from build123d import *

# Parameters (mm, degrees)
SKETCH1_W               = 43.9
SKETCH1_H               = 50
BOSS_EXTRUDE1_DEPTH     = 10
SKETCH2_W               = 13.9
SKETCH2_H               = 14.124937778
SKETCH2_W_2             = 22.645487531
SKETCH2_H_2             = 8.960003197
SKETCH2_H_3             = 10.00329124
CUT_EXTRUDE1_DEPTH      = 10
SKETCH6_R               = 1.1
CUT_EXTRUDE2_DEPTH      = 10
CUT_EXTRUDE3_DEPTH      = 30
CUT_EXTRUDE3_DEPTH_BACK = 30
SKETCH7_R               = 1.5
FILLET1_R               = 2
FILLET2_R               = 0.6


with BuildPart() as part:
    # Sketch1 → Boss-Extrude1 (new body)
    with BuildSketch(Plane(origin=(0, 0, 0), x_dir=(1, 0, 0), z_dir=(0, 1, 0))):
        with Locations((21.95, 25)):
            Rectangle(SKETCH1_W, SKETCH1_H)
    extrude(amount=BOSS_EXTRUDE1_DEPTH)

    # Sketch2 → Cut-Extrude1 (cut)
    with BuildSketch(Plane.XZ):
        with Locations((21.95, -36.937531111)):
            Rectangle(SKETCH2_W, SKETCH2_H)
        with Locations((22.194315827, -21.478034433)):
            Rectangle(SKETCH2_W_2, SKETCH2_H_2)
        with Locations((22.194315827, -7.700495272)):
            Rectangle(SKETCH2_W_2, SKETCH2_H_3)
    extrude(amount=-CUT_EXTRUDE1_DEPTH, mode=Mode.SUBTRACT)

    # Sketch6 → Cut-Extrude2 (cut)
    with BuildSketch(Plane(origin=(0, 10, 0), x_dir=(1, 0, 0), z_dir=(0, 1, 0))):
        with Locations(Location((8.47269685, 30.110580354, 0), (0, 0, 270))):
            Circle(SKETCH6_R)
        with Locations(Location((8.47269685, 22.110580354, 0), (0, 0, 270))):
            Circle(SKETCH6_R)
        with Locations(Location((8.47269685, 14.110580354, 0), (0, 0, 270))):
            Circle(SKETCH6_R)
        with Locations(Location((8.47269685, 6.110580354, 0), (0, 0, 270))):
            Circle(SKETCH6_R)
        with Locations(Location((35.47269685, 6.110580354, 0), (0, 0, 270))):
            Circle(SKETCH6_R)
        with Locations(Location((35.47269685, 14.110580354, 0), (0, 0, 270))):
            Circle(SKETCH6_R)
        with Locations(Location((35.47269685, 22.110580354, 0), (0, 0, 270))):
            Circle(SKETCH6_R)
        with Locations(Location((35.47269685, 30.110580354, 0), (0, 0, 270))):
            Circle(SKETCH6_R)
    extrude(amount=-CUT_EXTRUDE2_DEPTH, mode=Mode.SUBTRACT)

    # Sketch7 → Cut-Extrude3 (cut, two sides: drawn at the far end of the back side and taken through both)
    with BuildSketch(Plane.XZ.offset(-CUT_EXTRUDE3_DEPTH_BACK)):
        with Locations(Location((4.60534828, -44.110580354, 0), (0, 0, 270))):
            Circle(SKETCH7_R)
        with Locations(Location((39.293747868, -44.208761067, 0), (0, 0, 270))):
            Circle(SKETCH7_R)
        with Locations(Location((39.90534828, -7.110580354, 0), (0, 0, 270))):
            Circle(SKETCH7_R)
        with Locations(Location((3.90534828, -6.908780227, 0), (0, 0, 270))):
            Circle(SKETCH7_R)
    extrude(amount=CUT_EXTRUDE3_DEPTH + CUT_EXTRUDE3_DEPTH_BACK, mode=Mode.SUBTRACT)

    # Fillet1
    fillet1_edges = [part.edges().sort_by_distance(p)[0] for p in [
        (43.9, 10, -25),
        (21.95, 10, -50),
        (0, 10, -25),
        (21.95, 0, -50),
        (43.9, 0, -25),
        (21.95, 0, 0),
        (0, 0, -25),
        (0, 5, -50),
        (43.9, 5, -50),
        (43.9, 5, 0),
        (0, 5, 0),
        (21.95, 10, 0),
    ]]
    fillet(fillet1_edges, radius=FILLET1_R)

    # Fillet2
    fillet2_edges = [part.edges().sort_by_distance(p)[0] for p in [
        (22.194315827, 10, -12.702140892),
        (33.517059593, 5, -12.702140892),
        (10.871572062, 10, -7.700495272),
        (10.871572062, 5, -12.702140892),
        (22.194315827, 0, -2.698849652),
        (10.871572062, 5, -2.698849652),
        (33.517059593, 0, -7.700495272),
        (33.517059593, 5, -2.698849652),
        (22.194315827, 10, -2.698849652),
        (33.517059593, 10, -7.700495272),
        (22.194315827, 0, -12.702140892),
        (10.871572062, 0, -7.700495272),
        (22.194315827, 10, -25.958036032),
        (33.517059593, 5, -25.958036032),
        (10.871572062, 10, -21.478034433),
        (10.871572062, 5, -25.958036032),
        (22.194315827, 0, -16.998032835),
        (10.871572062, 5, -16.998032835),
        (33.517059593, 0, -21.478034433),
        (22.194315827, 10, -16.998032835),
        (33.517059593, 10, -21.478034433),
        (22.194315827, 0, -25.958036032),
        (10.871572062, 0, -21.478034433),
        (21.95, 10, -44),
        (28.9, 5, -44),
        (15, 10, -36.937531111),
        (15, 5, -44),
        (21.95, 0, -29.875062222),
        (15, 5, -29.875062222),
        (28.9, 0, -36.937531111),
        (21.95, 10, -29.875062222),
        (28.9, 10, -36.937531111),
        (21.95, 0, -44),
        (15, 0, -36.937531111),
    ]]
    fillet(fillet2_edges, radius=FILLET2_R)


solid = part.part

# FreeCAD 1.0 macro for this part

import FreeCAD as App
import Part
import Sketcher
Q = App.Units.Quantity


def edges_at(feature, points):
    """Names of the edges that pass closest to the given points."""
    edges = feature.Shape.Edges
    near = lambda p: min(range(len(edges)), key=lambda i: edges[i].distToShape(Part.Vertex(*p))[0])
    return sorted({f"Edge{near(p) + 1}" for p in points})


def add_polygon(sketch, points):
    """Adds a closed chain of lines whose ends are joined by coincident constraints."""
    first, n = sketch.GeometryCount, len(points)
    for a, b in zip(points, points[1:] + points[:1]):
        sketch.addGeometry(Part.LineSegment(App.Vector(*a, 0), App.Vector(*b, 0)), False)
    for i in range(n):
        sketch.addConstraint(Sketcher.Constraint("Coincident", first + i, 2, first + (i + 1) % n, 1))

doc = App.newDocument("Part")
body = doc.addObject("PartDesign::Body", "Body")

sketch1 = doc.addObject("Sketcher::SketchObject", "Sketch")
body.addObject(sketch1)
sketch1.AttachmentSupport = (doc.XZ_Plane, [""])
sketch1.MapMode = "FlatFace"
add_polygon(sketch1, [(0, -50), (0, 0), (43.9, 0), (43.9, -50)])
sketch1.addConstraint([
    Sketcher.Constraint("Vertical", 0),
    Sketcher.Constraint("Horizontal", 1),
    Sketcher.Constraint("Vertical", 2),
    Sketcher.Constraint("Horizontal", 3),
    Sketcher.Constraint("Coincident", 0, 2, -1, 1),
    Sketcher.Constraint("DistanceY", 0, 1, 0, 2, Q("50 mm")),
    Sketcher.Constraint("DistanceX", 1, 1, 1, 2, Q("43.9 mm")),
])
pad1 = doc.addObject("PartDesign::Pad", "Pad")
body.addObject(pad1)
pad1.Profile = sketch1
pad1.Length = 10
pad1.Reversed = True

sketch2 = doc.addObject("Sketcher::SketchObject", "Sketch001")
body.addObject(sketch2)
sketch2.AttachmentSupport = (doc.XZ_Plane, [""])
sketch2.MapMode = "FlatFace"
add_polygon(sketch2, [(15, -29.875062), (15, -44), (28.9, -44), (28.9, -29.875062)])
add_polygon(sketch2, [(10.871572, -16.998033), (10.871572, -25.958036), (33.51706, -25.958036), (33.51706, -16.998033)])
add_polygon(sketch2, [(10.871572, -2.69885), (10.871572, -12.702141), (33.51706, -12.702141), (33.51706, -2.69885)])
sketch2.addConstraint([
    Sketcher.Constraint("Vertical", 0),
    Sketcher.Constraint("Horizontal", 1),
    Sketcher.Constraint("Vertical", 2),
    Sketcher.Constraint("Horizontal", 3),
    Sketcher.Constraint("Vertical", 4),
    Sketcher.Constraint("Horizontal", 5),
    Sketcher.Constraint("Vertical", 6),
    Sketcher.Constraint("Horizontal", 7),
    Sketcher.Constraint("Vertical", 8),
    Sketcher.Constraint("Horizontal", 9),
    Sketcher.Constraint("Vertical", 10),
    Sketcher.Constraint("Horizontal", 11),
    Sketcher.Constraint("Vertical", 7, 2, 8, 2),
    Sketcher.Constraint("Vertical", 6, 2, 9, 2),
    Sketcher.Constraint("DistanceX", 1, 1, 1, 2, Q("13.9 mm")),
    Sketcher.Constraint("DistanceX", -1, 1, 0, 2, Q("15 mm")),
    Sketcher.Constraint("DistanceY", 0, 2, -1, 1, Q("44 mm")),
    Sketcher.Constraint("DistanceY", 8, 2, 8, 1, Q("10.003291 mm")),
    Sketcher.Constraint("DistanceX", 5, 1, 5, 2, Q("22.645488 mm")),
    Sketcher.Constraint("DistanceY", 0, 2, 0, 1, Q("14.124938 mm")),
    Sketcher.Constraint("DistanceY", 4, 2, 4, 1, Q("8.960003 mm")),
    Sketcher.Constraint("DistanceX", -1, 1, 5, 2, Q("33.51706 mm")),
    Sketcher.Constraint("DistanceY", 8, 2, -1, 1, Q("12.702141 mm")),
    Sketcher.Constraint("DistanceY", 2, 2, 6, 2, Q("12.877029 mm")),
])
pocket1 = doc.addObject("PartDesign::Pocket", "Pocket")
body.addObject(pocket1)
pocket1.Profile = sketch2
pocket1.Length = 10

sketch3 = doc.addObject("Sketcher::SketchObject", "Sketch002")
body.addObject(sketch3)
sketch3.AttachmentSupport = (doc.XZ_Plane, [""])
sketch3.MapMode = "FlatFace"
sketch3.AttachmentOffset = App.Placement(App.Vector(0, 0, -10), App.Rotation())
sketch3.addGeometry([
    Part.Circle(App.Vector(8.472697, -30.11058, 0), App.Vector(0, 0, 1), 1.1),
    Part.Circle(App.Vector(8.472697, -22.11058, 0), App.Vector(0, 0, 1), 1.1),
    Part.Circle(App.Vector(8.472697, -14.11058, 0), App.Vector(0, 0, 1), 1.1),
    Part.Circle(App.Vector(8.472697, -6.11058, 0), App.Vector(0, 0, 1), 1.1),
    Part.Circle(App.Vector(35.472697, -6.11058, 0), App.Vector(0, 0, 1), 1.1),
    Part.Circle(App.Vector(35.472697, -14.11058, 0), App.Vector(0, 0, 1), 1.1),
    Part.Circle(App.Vector(35.472697, -22.11058, 0), App.Vector(0, 0, 1), 1.1),
    Part.Circle(App.Vector(35.472697, -30.11058, 0), App.Vector(0, 0, 1), 1.1),
], False)
sketch3.addConstraint([
    Sketcher.Constraint("Equal", 0, 1),
    Sketcher.Constraint("Equal", 1, 2),
    Sketcher.Constraint("Equal", 2, 3),
    Sketcher.Constraint("Equal", 3, 4),
    Sketcher.Constraint("Equal", 4, 5),
    Sketcher.Constraint("Equal", 5, 6),
    Sketcher.Constraint("Equal", 6, 7),
    Sketcher.Constraint("Horizontal", 3, 3, 4, 3),
    Sketcher.Constraint("Horizontal", 2, 3, 5, 3),
    Sketcher.Constraint("Horizontal", 1, 3, 6, 3),
    Sketcher.Constraint("Horizontal", 0, 3, 7, 3),
    Sketcher.Constraint("Vertical", 0, 3, 1, 3),
    Sketcher.Constraint("Vertical", 1, 3, 2, 3),
    Sketcher.Constraint("Vertical", 2, 3, 3, 3),
    Sketcher.Constraint("Vertical", 4, 3, 5, 3),
    Sketcher.Constraint("Vertical", 5, 3, 6, 3),
    Sketcher.Constraint("Vertical", 6, 3, 7, 3),
    Sketcher.Constraint("Diameter", 0, Q("2.2 mm")),
    Sketcher.Constraint("DistanceY", 0, 3, 1, 3, Q("8 mm")),
    Sketcher.Constraint("DistanceY", 1, 3, 2, 3, Q("8 mm")),
    Sketcher.Constraint("DistanceY", 2, 3, 3, 3, Q("8 mm")),
    Sketcher.Constraint("DistanceX", 3, 3, 4, 3, Q("27 mm")),
    Sketcher.Constraint("DistanceY", 0, 3, -1, 1, Q("30.11058 mm")),
    Sketcher.Constraint("DistanceX", -1, 1, 0, 3, Q("8.472697 mm")),
])
pocket2 = doc.addObject("PartDesign::Pocket", "Pocket001")
body.addObject(pocket2)
pocket2.Profile = sketch3
pocket2.Length = 10
pocket2.Reversed = True

sketch4 = doc.addObject("Sketcher::SketchObject", "Sketch003")
body.addObject(sketch4)
sketch4.AttachmentSupport = (doc.XZ_Plane, [""])
sketch4.MapMode = "FlatFace"
sketch4.addGeometry([
    Part.Circle(App.Vector(4.605348, -44.11058, 0), App.Vector(0, 0, 1), 1.5),
    Part.Circle(App.Vector(39.293748, -44.208761, 0), App.Vector(0, 0, 1), 1.5),
    Part.Circle(App.Vector(39.905348, -7.11058, 0), App.Vector(0, 0, 1), 1.5),
    Part.Circle(App.Vector(3.905348, -6.90878, 0), App.Vector(0, 0, 1), 1.5),
], False)
sketch4.addConstraint([
    Sketcher.Constraint("Equal", 0, 1),
    Sketcher.Constraint("Equal", 1, 2),
    Sketcher.Constraint("Equal", 2, 3),
    Sketcher.Constraint("Diameter", 0, Q("3 mm")),
    Sketcher.Constraint("DistanceY", 0, 3, 2, 3, Q("37 mm")),
    Sketcher.Constraint("DistanceX", 3, 3, 2, 3, Q("36 mm")),
    Sketcher.Constraint("DistanceX", 0, 3, 2, 3, Q("35.3 mm")),
    Sketcher.Constraint("DistanceX", 0, 3, 1, 3, Q("34.6884 mm")),
    Sketcher.Constraint("DistanceY", 2, 3, 3, 3, Q("0.2018 mm")),
    Sketcher.Constraint("DistanceX", -1, 1, 0, 3, Q("4.605348 mm")),
    Sketcher.Constraint("DistanceY", 0, 3, -1, 1, Q("44.11058 mm")),
    Sketcher.Constraint("DistanceY", 1, 3, -1, 1, Q("44.208761 mm")),
])
pocket3 = doc.addObject("PartDesign::Pocket", "Pocket002")
body.addObject(pocket3)
pocket3.Profile = sketch4
pocket3.Type = "ThroughAll"
pocket3.Midplane = True
doc.recompute()

fillet = doc.addObject("PartDesign::Fillet", "Fillet")
body.addObject(fillet)
fillet.Base = (pocket3, edges_at(pocket3, [
    (43.9, 10, -25),
    (21.95, 10, -50),
    (0, 10, -25),
    (21.95, 0, -50),
    (43.9, 0, -25),
    (21.95, 0, 0),
    (0, 0, -25),
    (0, 5, -50),
    (43.9, 5, -50),
    (43.9, 5, 0),
    (0, 5, 0),
    (21.95, 10, 0),
]))
fillet.Radius = 2
doc.recompute()

fillet2 = doc.addObject("PartDesign::Fillet", "Fillet001")
body.addObject(fillet2)
fillet2.Base = (fillet, edges_at(fillet, [
    (22.194, 10, -12.702),
    (33.517, 5, -12.702),
    (10.872, 10, -7.7),
    (10.872, 5, -12.702),
    (22.194, 0, -2.699),
    (10.872, 5, -2.699),
    (33.517, 0, -7.7),
    (33.517, 5, -2.699),
    (22.194, 10, -2.699),
    (33.517, 10, -7.7),
    (22.194, 0, -12.702),
    (10.872, 0, -7.7),
    (22.194, 10, -25.958),
    (33.517, 5, -25.958),
    (10.872, 10, -21.478),
    (10.872, 5, -25.958),
    (22.194, 0, -16.998),
    (10.872, 5, -16.998),
    (33.517, 0, -21.478),
    (22.194, 10, -16.998),
    (33.517, 10, -21.478),
    (22.194, 0, -25.958),
    (10.872, 0, -21.478),
    (21.95, 10, -44),
    (28.9, 5, -44),
    (15, 10, -36.938),
    (15, 5, -44),
    (21.95, 0, -29.875),
    (15, 5, -29.875),
    (28.9, 0, -36.938),
    (21.95, 10, -29.875),
    (28.9, 10, -36.938),
    (21.95, 0, -44),
    (15, 0, -36.938),
]))
fillet2.Radius = 0.6

doc.recompute()
